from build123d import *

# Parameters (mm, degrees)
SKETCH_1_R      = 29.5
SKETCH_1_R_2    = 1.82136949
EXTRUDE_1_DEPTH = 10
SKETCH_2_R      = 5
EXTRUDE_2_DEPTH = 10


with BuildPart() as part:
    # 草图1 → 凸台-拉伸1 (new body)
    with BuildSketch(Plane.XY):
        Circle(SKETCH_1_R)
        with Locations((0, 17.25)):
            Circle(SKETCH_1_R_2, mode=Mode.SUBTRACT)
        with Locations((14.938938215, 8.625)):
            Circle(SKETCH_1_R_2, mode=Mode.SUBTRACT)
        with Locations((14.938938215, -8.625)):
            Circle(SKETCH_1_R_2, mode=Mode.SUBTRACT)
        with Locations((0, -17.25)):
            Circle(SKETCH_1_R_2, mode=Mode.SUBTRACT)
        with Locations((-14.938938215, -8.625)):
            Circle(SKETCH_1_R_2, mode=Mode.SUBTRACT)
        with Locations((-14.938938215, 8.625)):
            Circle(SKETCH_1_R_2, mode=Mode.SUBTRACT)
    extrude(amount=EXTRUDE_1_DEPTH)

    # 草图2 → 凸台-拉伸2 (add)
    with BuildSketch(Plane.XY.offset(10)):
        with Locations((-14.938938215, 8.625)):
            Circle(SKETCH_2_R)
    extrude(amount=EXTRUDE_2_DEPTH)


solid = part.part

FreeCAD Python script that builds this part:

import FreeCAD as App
import Part
import Sketcher

V = App.Vector

doc = App.newDocument("Part")
body = doc.addObject("PartDesign::Body", "Body")

# Sketch on XY plane
sketch1 = doc.addObject("Sketcher::SketchObject", "Sketch")
body.addObject(sketch1)
sketch1.AttachmentSupport = (doc.XY_Plane, [""])
sketch1.MapMode = "FlatFace"
sketch1.addGeometry([
    Part.Circle(V(0, 0, 0), V(0, 0, 1), 29.5),  # 0
    Part.Circle(V(-14.938938, -8.625, 0), V(0, 0, 1), 1.821369),  # 1
    Part.Circle(V(0, -17.25, 0), V(0, 0, 1), 1.821369),  # 2
    Part.Circle(V(14.938938, -8.625, 0), V(0, 0, 1), 1.821369),  # 3
    Part.Circle(V(-14.938938, 8.625, 0), V(0, 0, 1), 1.821369),  # 4
    Part.Circle(V(14.938938, 8.625, 0), V(0, 0, 1), 1.821369),  # 5
    Part.Circle(V(0, 17.25, 0), V(0, 0, 1), 1.821369),  # 6
], False)
sketch1.addConstraint([
    Sketcher.Constraint("Coincident", 0, 3, -1, 1),
    Sketcher.Constraint("Equal", 1, 2),
    Sketcher.Constraint("Equal", 2, 3),
    Sketcher.Constraint("Equal", 3, 4),
    Sketcher.Constraint("Equal", 4, 5),
    Sketcher.Constraint("Equal", 5, 6),
    Sketcher.Constraint("Symmetric", 3, 3, 4, 3, -1, 1),
    Sketcher.Constraint("Symmetric", 1, 3, 5, 3, -1, 1),
    Sketcher.Constraint("Symmetric", 2, 3, 6, 3, -1, 1),
    Sketcher.Constraint("Symmetric", 1, 3, 3, 3, -2),
    Sketcher.Constraint("PointOnObject", 2, 3, -2),
    Sketcher.Constraint("Diameter", 0, 59.0),
    Sketcher.Constraint("Diameter", 1, 3.642739),
    Sketcher.Constraint("DistanceY", 2, 3, -1, 1, 17.25),
    Sketcher.Constraint("DistanceY", 1, 3, 4, 3, 17.25),
    Sketcher.Constraint("DistanceX", 1, 3, -1, 1, 14.938938),
])
pad1 = doc.addObject("PartDesign::Pad", "Pad")
body.addObject(pad1)
pad1.Profile = sketch1
pad1.Length = 10

# Sketch on XY plane
sketch2 = doc.addObject("Sketcher::SketchObject", "Sketch001")
body.addObject(sketch2)
sketch2.AttachmentSupport = (doc.XY_Plane, [""])
sketch2.MapMode = "FlatFace"
sketch2.AttachmentOffset = App.Placement(V(0, 0, 10), App.Rotation())
sketch2.addGeometry(Part.Circle(V(-14.938938, 8.625, 0), V(0, 0, 1), 5), False)
sketch2.addConstraint([
    Sketcher.Constraint("Diameter", 0, 10.0),
    Sketcher.Constraint("DistanceY", -1, 1, 0, 3, 8.625),
    Sketcher.Constraint("DistanceX", 0, 3, -1, 1, 14.938938),
])
pad2 = doc.addObject("PartDesign::Pad", "Pad001")
body.addObject(pad2)
pad2.Profile = sketch2
pad2.Length = 10

doc.recompute()
